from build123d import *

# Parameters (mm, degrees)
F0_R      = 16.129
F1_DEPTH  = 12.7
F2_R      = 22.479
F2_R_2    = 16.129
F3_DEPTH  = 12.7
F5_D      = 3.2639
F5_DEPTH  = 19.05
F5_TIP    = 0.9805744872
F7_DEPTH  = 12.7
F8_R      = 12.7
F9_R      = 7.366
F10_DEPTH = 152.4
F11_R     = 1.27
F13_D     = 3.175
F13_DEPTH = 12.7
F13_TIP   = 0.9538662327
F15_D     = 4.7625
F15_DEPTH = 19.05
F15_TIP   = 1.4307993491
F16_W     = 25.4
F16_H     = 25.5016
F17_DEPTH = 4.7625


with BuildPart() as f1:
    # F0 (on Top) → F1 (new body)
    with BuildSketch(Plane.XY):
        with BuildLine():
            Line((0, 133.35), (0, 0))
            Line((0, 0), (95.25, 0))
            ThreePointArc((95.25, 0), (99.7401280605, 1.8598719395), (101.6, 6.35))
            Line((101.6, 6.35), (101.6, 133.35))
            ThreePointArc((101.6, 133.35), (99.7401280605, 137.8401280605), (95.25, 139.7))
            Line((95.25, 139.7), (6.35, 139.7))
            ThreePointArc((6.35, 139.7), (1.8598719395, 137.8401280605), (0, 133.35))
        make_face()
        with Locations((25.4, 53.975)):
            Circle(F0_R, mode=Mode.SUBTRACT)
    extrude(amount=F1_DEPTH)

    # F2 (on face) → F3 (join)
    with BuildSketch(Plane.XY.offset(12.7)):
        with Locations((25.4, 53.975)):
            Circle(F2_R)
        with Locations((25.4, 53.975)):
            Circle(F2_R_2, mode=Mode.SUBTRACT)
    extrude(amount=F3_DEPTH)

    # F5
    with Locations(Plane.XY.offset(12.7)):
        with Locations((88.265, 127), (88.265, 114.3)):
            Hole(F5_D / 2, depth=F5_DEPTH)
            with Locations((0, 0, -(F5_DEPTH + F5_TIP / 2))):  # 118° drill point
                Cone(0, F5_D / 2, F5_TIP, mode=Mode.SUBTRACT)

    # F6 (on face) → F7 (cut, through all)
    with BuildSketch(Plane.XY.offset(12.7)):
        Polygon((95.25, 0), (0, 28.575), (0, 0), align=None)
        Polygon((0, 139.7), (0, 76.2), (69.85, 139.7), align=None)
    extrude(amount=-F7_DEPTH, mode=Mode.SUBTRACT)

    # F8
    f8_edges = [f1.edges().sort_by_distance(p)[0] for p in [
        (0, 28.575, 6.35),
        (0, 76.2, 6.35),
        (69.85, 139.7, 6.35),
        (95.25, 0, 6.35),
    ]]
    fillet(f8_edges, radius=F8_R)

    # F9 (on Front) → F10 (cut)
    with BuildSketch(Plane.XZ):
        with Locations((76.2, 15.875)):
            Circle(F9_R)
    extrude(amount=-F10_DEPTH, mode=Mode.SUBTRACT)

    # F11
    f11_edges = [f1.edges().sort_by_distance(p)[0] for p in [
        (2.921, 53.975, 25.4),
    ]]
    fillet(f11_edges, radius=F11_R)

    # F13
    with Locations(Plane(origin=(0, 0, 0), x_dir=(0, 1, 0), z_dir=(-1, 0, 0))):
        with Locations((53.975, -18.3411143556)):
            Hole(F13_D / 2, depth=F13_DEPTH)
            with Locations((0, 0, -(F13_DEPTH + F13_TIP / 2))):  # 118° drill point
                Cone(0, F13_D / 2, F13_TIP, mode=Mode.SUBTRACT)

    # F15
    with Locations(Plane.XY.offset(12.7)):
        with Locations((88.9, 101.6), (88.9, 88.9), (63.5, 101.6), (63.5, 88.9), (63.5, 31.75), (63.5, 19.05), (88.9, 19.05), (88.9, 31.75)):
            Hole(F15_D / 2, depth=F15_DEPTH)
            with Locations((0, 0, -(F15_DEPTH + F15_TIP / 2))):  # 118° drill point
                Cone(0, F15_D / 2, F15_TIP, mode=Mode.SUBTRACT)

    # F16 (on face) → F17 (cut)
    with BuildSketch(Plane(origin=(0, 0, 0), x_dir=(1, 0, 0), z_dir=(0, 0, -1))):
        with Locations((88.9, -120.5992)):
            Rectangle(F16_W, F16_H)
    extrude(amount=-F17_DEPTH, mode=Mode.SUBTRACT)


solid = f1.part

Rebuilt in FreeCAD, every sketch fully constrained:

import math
import FreeCAD as App
import Part
import Sketcher
Q = App.Units.Quantity


def edges_at(feature, points):
    """Names of the edges that pass closest to the given points."""
    edges = feature.Shape.Edges
    near = lambda p: min(range(len(edges)), key=lambda i: edges[i].distToShape(Part.Vertex(*p))[0])
    return sorted({f"Edge{near(p) + 1}" for p in points})

doc = App.newDocument("Part")
params = doc.addObject("Spreadsheet::Sheet", "Params")
for row, (alias, value) in enumerate([
    ("sketch1_diameter", "1.27 in"),
    ("sketch1_height", "5 in"),
    ("sketch1_radius", "0.25 in"),
    ("sketch1_width", "3.5 in"),
    ("pad1_length", "0.5 in"),
    ("sketch2_diameter", "1.77 in"),
    ("sketch2_diameter2", "1.27 in"),
    ("pad2_length", "0.5 in"),
    ("hole_diameter", "0.1285 in"),
    ("hole_depth", "0.75 in"),
    ("sketch4_height", "2.5 in"),
    ("sketch4_width", "3.75 in"),
    ("sketch4_height2", "1.125 in"),
    ("fillet_radius", "0.5 in"),
    ("sketch5_diameter", "0.58 in"),
    ("pocket2_length", "6 in"),
    ("fillet2_radius", "0.05 in"),
    ("sketch6_diameter", "0.125 in"),
    ("hole2_diameter", "0.125 in"),
    ("hole2_depth", "0.5 in"),
    ("sketch7_diameter", "0.1875 in"),
    ("hole3_diameter", "0.1875 in"),
    ("hole3_depth", "0.75 in"),
    ("sketch8_width", "1 in"),
    ("sketch8_height", "1.004 in"),
    ("pocket3_length", "0.1875 in"),
], start=1):
    params.set(f"A{row}", alias)
    params.set(f"B{row}", "=" + value)
    params.setAlias(f"B{row}", alias)

body = doc.addObject("PartDesign::Body", "Body")

sketch1 = body.newObject("Sketcher::SketchObject", "Sketch")
sketch1.AttachmentSupport = (doc.getObject("XY_Plane"), [""])
sketch1.MapMode = "FlatFace"
sketch1.addGeometry(Part.LineSegment(App.Vector(0, 133, 0), App.Vector(0, 0, 0)), False)
sketch1.addGeometry(Part.LineSegment(App.Vector(0, 0, 0), App.Vector(95, 0, 0)), False)
sketch1.addGeometry(Part.ArcOfCircle(Part.Circle(App.Vector(95, 6, 0), App.Vector(0, 0, 1), 6), math.radians(-90), math.radians(0)), False)
sketch1.addGeometry(Part.LineSegment(App.Vector(102, 6, 0), App.Vector(102, 133, 0)), False)
sketch1.addGeometry(Part.ArcOfCircle(Part.Circle(App.Vector(95, 133, 0), App.Vector(0, 0, 1), 6), math.radians(0), math.radians(90)), False)
sketch1.addGeometry(Part.LineSegment(App.Vector(95, 140, 0), App.Vector(6, 140, 0)), False)
sketch1.addGeometry(Part.ArcOfCircle(Part.Circle(App.Vector(6, 133, 0), App.Vector(0, 0, 1), 6), math.radians(90), math.radians(180)), False)
sketch1.addGeometry(Part.Circle(App.Vector(25, 54, 0), App.Vector(0, 0, 1), 16), False)
sketch1.addConstraint(Sketcher.Constraint("Coincident", 0, 2, 1, 1))
sketch1.addConstraint(Sketcher.Constraint("Tangent", 1, 2, 2, 1))
sketch1.addConstraint(Sketcher.Constraint("Tangent", 2, 2, 3, 1))
sketch1.addConstraint(Sketcher.Constraint("Tangent", 3, 2, 4, 1))
sketch1.addConstraint(Sketcher.Constraint("Tangent", 4, 2, 5, 1))
sketch1.addConstraint(Sketcher.Constraint("Tangent", 5, 2, 6, 1))
sketch1.addConstraint(Sketcher.Constraint("Tangent", 6, 2, 0, 1))
sketch1.addConstraint(Sketcher.Constraint("Vertical", 0))
sketch1.addConstraint(Sketcher.Constraint("Horizontal", 1))
sketch1.addConstraint(Sketcher.Constraint("Vertical", 3))
sketch1.addConstraint(Sketcher.Constraint("Horizontal", 5))
sketch1.addConstraint(Sketcher.Constraint("Coincident", 0, 2, -1, 1))
sketch1.addConstraint(Sketcher.Constraint("Equal", 2, 4))
sketch1.addConstraint(Sketcher.Constraint("Equal", 4, 6))
sketch1.addConstraint(Sketcher.Constraint("Diameter", 7, Q("1.27 in")))
sketch1.addConstraint(Sketcher.Constraint("DistanceY", 3, 1, 3, 2, Q("5 in")))
sketch1.addConstraint(Sketcher.Constraint("Radius", 2, Q("0.25 in")))
sketch1.addConstraint(Sketcher.Constraint("DistanceX", 5, 2, 5, 1, Q("3.5 in")))
sketch1.addConstraint(Sketcher.Constraint("DistanceX", -1, 1, 7, 3, Q("1 in")))
sketch1.addConstraint(Sketcher.Constraint("DistanceY", -1, 1, 7, 3, Q("2.125 in")))
sketch1.setExpression("Constraints[14]", "Params.sketch1_diameter")
sketch1.setExpression("Constraints[15]", "Params.sketch1_height")
sketch1.setExpression("Constraints[16]", "Params.sketch1_radius")
sketch1.setExpression("Constraints[17]", "Params.sketch1_width")
pad1 = body.newObject("PartDesign::Pad", "Pad")
pad1.Profile = sketch1
pad1.setExpression("Length", "Params.pad1_length")

sketch2 = body.newObject("Sketcher::SketchObject", "Sketch001")
sketch2.AttachmentSupport = (doc.getObject("XY_Plane"), [""])
sketch2.MapMode = "FlatFace"
sketch2.AttachmentOffset = App.Placement(App.Vector(0, 0, 0.5 * 25.4), App.Rotation())
sketch2.addGeometry(Part.Circle(App.Vector(25, 54, 0), App.Vector(0, 0, 1), 22), False)
sketch2.addGeometry(Part.Circle(App.Vector(25, 54, 0), App.Vector(0, 0, 1), 16), False)
sketch2.addConstraint(Sketcher.Constraint("Coincident", 1, 3, 0, 3))
sketch2.addConstraint(Sketcher.Constraint("Diameter", 0, Q("1.77 in")))
sketch2.addConstraint(Sketcher.Constraint("Diameter", 1, Q("1.27 in")))
sketch2.addConstraint(Sketcher.Constraint("DistanceX", -1, 1, 0, 3, Q("1 in")))
sketch2.addConstraint(Sketcher.Constraint("DistanceY", -1, 1, 0, 3, Q("2.125 in")))
sketch2.setExpression("Constraints[1]", "Params.sketch2_diameter")
sketch2.setExpression("Constraints[2]", "Params.sketch2_diameter2")
pad2 = body.newObject("PartDesign::Pad", "Pad001")
pad2.Profile = sketch2
pad2.setExpression("Length", "Params.pad2_length")

sketch3 = body.newObject("Sketcher::SketchObject", "Sketch002")
sketch3.AttachmentSupport = (doc.getObject("XY_Plane"), [""])
sketch3.MapMode = "FlatFace"
sketch3.AttachmentOffset = App.Placement(App.Vector(0, 0, 0.5 * 25.4), App.Rotation())
sketch3.addGeometry(Part.Circle(App.Vector(88.3, 127, 0), App.Vector(0, 0, 1), 1.6), False)
sketch3.addGeometry(Part.Circle(App.Vector(88.3, 114.3, 0), App.Vector(0, 0, 1), 1.6), False)
sketch3.addConstraint(Sketcher.Constraint("Equal", 0, 1))
sketch3.addConstraint(Sketcher.Constraint("Vertical", 0, 3, 1, 3))
sketch3.addConstraint(Sketcher.Constraint("DistanceY", -1, 1, 0, 3, Q("5 in")))
sketch3.addConstraint(Sketcher.Constraint("Diameter", 0, Q("0.1285 in")))
sketch3.addConstraint(Sketcher.Constraint("DistanceY", -1, 1, 1, 3, Q("4.5 in")))
sketch3.addConstraint(Sketcher.Constraint("DistanceX", -1, 1, 0, 3, Q("3.475 in")))
doc.recompute()
hole = body.newObject("PartDesign::Hole", "Hole")
hole.Profile = sketch3
hole.ThreadType = "None"
hole.setExpression("Diameter", "Params.hole_diameter")
hole.DepthType = "Dimension"
hole.setExpression("Depth", "Params.hole_depth")
hole.DrillPoint = "Angled"
hole.DrillPointAngle = 118

sketch4 = body.newObject("Sketcher::SketchObject", "Sketch003")
sketch4.AttachmentSupport = (doc.getObject("XY_Plane"), [""])
sketch4.MapMode = "FlatFace"
sketch4.AttachmentOffset = App.Placement(App.Vector(0, 0, 0.5 * 25.4), App.Rotation())
sketch4.addGeometry(Part.LineSegment(App.Vector(95, 0, 0), App.Vector(0, 29, 0)), False)
sketch4.addGeometry(Part.LineSegment(App.Vector(0, 29, 0), App.Vector(0, 0, 0)), False)
sketch4.addGeometry(Part.LineSegment(App.Vector(0, 0, 0), App.Vector(95, 0, 0)), False)
sketch4.addGeometry(Part.LineSegment(App.Vector(0, 140, 0), App.Vector(0, 76, 0)), False)
sketch4.addGeometry(Part.LineSegment(App.Vector(0, 76, 0), App.Vector(70, 140, 0)), False)
sketch4.addGeometry(Part.LineSegment(App.Vector(70, 140, 0), App.Vector(0, 140, 0)), False)
sketch4.addConstraint(Sketcher.Constraint("Coincident", 0, 2, 1, 1))
sketch4.addConstraint(Sketcher.Constraint("Coincident", 1, 2, 2, 1))
sketch4.addConstraint(Sketcher.Constraint("Coincident", 2, 2, 0, 1))
sketch4.addConstraint(Sketcher.Constraint("Coincident", 3, 2, 4, 1))
sketch4.addConstraint(Sketcher.Constraint("Coincident", 4, 2, 5, 1))
sketch4.addConstraint(Sketcher.Constraint("Coincident", 5, 2, 3, 1))
sketch4.addConstraint(Sketcher.Constraint("Vertical", 1))
sketch4.addConstraint(Sketcher.Constraint("Horizontal", 2))
sketch4.addConstraint(Sketcher.Constraint("Vertical", 3))
sketch4.addConstraint(Sketcher.Constraint("Horizontal", 5))
sketch4.addConstraint(Sketcher.Constraint("Coincident", 1, 2, -1, 1))
sketch4.addConstraint(Sketcher.Constraint("PointOnObject", 3, 2, -2))
sketch4.addConstraint(Sketcher.Constraint("DistanceY", 3, 2, 3, 1, Q("2.5 in")))
sketch4.addConstraint(Sketcher.Constraint("DistanceY", -1, 1, 3, 2, Q("3 in")))
sketch4.addConstraint(Sketcher.Constraint("DistanceX", 4, 2, 2, 2, Q("1 in")))
sketch4.addConstraint(Sketcher.Constraint("DistanceX", 2, 1, 2, 2, Q("3.75 in")))
sketch4.addConstraint(Sketcher.Constraint("DistanceY", 1, 2, 1, 1, Q("1.125 in")))
sketch4.setExpression("Constraints[12]", "Params.sketch4_height")
sketch4.setExpression("Constraints[15]", "Params.sketch4_width")
sketch4.setExpression("Constraints[16]", "Params.sketch4_height2")
pocket1 = body.newObject("PartDesign::Pocket", "Pocket")
pocket1.Profile = sketch4
pocket1.Type = "ThroughAll"
doc.recompute()

fillet = body.newObject("PartDesign::Fillet", "Fillet")
fillet.Base = (pocket1, edges_at(pocket1, [
    (0, 28.575, 6.35),
    (0, 76.2, 6.35),
    (69.85, 139.7, 6.35),
    (95.25, 0, 6.35),
]))
fillet.setExpression("Radius", "Params.fillet_radius")

sketch5 = body.newObject("Sketcher::SketchObject", "Sketch004")
sketch5.AttachmentSupport = (doc.getObject("XZ_Plane"), [""])
sketch5.MapMode = "FlatFace"
sketch5.addGeometry(Part.Circle(App.Vector(76, 16, 0), App.Vector(0, 0, 1), 7), False)
sketch5.addConstraint(Sketcher.Constraint("Diameter", 0, Q("0.58 in")))
sketch5.addConstraint(Sketcher.Constraint("DistanceX", -1, 1, 0, 3, Q("3 in")))
sketch5.addConstraint(Sketcher.Constraint("DistanceY", -1, 1, 0, 3, Q("0.625 in")))
sketch5.setExpression("Constraints[0]", "Params.sketch5_diameter")
pocket2 = body.newObject("PartDesign::Pocket", "Pocket001")
pocket2.Profile = sketch5
pocket2.setExpression("Length", "Params.pocket2_length")
doc.recompute()

fillet2 = body.newObject("PartDesign::Fillet", "Fillet001")
fillet2.Base = (pocket2, edges_at(pocket2, [(2.921, 53.975, 25.4)]))
fillet2.setExpression("Radius", "Params.fillet2_radius")

sketch6 = body.newObject("Sketcher::SketchObject", "Sketch005")
sketch6.AttachmentSupport = (doc.getObject("YZ_Plane"), [""])
sketch6.MapMode = "FlatFace"
sketch6.addGeometry(Part.Circle(App.Vector(54, 18.3, 0), App.Vector(0, 0, 1), 1.6), False)
sketch6.addConstraint(Sketcher.Constraint("Diameter", 0, Q("0.125 in")))
sketch6.addConstraint(Sketcher.Constraint("DistanceX", -1, 1, 0, 3, Q("2.125 in")))
sketch6.addConstraint(Sketcher.Constraint("DistanceY", -1, 1, 0, 3, Q("18.341114 mm")))
sketch6.setExpression("Constraints[0]", "Params.sketch6_diameter")
doc.recompute()
hole2 = body.newObject("PartDesign::Hole", "Hole001")
hole2.Profile = sketch6
hole2.ThreadType = "None"
hole2.setExpression("Diameter", "Params.hole2_diameter")
hole2.DepthType = "Dimension"
hole2.setExpression("Depth", "Params.hole2_depth")
hole2.DrillPoint = "Angled"
hole2.DrillPointAngle = 118
hole2.Reversed = True

sketch7 = body.newObject("Sketcher::SketchObject", "Sketch006")
sketch7.AttachmentSupport = (doc.getObject("XY_Plane"), [""])
sketch7.MapMode = "FlatFace"
sketch7.AttachmentOffset = App.Placement(App.Vector(0, 0, 0.5 * 25.4), App.Rotation())
sketch7.addGeometry(Part.Circle(App.Vector(88.9, 101.6, 0), App.Vector(0, 0, 1), 2.4), False)
sketch7.addGeometry(Part.Circle(App.Vector(88.9, 88.9, 0), App.Vector(0, 0, 1), 2.4), False)
sketch7.addGeometry(Part.Circle(App.Vector(63.5, 101.6, 0), App.Vector(0, 0, 1), 2.4), False)
sketch7.addGeometry(Part.Circle(App.Vector(63.5, 88.9, 0), App.Vector(0, 0, 1), 2.4), False)
sketch7.addGeometry(Part.Circle(App.Vector(63.5, 31.8, 0), App.Vector(0, 0, 1), 2.4), False)
sketch7.addGeometry(Part.Circle(App.Vector(63.5, 19.1, 0), App.Vector(0, 0, 1), 2.4), False)
sketch7.addGeometry(Part.Circle(App.Vector(88.9, 19.1, 0), App.Vector(0, 0, 1), 2.4), False)
sketch7.addGeometry(Part.Circle(App.Vector(88.9, 31.8, 0), App.Vector(0, 0, 1), 2.4), False)
sketch7.addConstraint(Sketcher.Constraint("Equal", 0, 1))
sketch7.addConstraint(Sketcher.Constraint("Equal", 1, 2))
sketch7.addConstraint(Sketcher.Constraint("Equal", 2, 3))
sketch7.addConstraint(Sketcher.Constraint("Equal", 3, 4))
sketch7.addConstraint(Sketcher.Constraint("Equal", 4, 5))
sketch7.addConstraint(Sketcher.Constraint("Equal", 5, 6))
sketch7.addConstraint(Sketcher.Constraint("Equal", 6, 7))
sketch7.addConstraint(Sketcher.Constraint("Horizontal", 0, 3, 2, 3))
sketch7.addConstraint(Sketcher.Constraint("Horizontal", 1, 3, 3, 3))
sketch7.addConstraint(Sketcher.Constraint("Horizontal", 5, 3, 6, 3))
sketch7.addConstraint(Sketcher.Constraint("Horizontal", 4, 3, 7, 3))
sketch7.addConstraint(Sketcher.Constraint("Vertical", 0, 3, 1, 3))
sketch7.addConstraint(Sketcher.Constraint("Vertical", 2, 3, 3, 3))
sketch7.addConstraint(Sketcher.Constraint("Vertical", 3, 3, 4, 3))
sketch7.addConstraint(Sketcher.Constraint("Vertical", 4, 3, 5, 3))
sketch7.addConstraint(Sketcher.Constraint("Vertical", 1, 3, 6, 3))
sketch7.addConstraint(Sketcher.Constraint("Vertical", 6, 3, 7, 3))
sketch7.addConstraint(Sketcher.Constraint("Diameter", 0, Q("0.1875 in")))
sketch7.addConstraint(Sketcher.Constraint("DistanceY", -1, 1, 0, 3, Q("4 in")))
sketch7.addConstraint(Sketcher.Constraint("DistanceX", 2, 3, 0, 3, Q("1 in")))
sketch7.addConstraint(Sketcher.Constraint("DistanceX", -1, 1, 0, 3, Q("3.5 in")))
sketch7.addConstraint(Sketcher.Constraint("DistanceY", -1, 1, 1, 3, Q("3.5 in")))
sketch7.addConstraint(Sketcher.Constraint("DistanceY", 5, 3, 4, 3, Q("0.5 in")))
sketch7.addConstraint(Sketcher.Constraint("DistanceY", -1, 1, 4, 3, Q("1.25 in")))
sketch7.setExpression("Constraints[17]", "Params.sketch7_diameter")
doc.recompute()
hole3 = body.newObject("PartDesign::Hole", "Hole002")
hole3.Profile = sketch7
hole3.ThreadType = "None"
hole3.setExpression("Diameter", "Params.hole3_diameter")
hole3.DepthType = "Dimension"
hole3.setExpression("Depth", "Params.hole3_depth")
hole3.DrillPoint = "Angled"
hole3.DrillPointAngle = 118

sketch8 = body.newObject("Sketcher::SketchObject", "Sketch007")
sketch8.AttachmentSupport = (doc.getObject("XY_Plane"), [""])
sketch8.MapMode = "FlatFace"
sketch8.addGeometry(Part.LineSegment(App.Vector(76, 108, 0), App.Vector(76, 133, 0)), False)
sketch8.addGeometry(Part.LineSegment(App.Vector(76, 133, 0), App.Vector(102, 133, 0)), False)
sketch8.addGeometry(Part.LineSegment(App.Vector(102, 133, 0), App.Vector(102, 108, 0)), False)
sketch8.addGeometry(Part.LineSegment(App.Vector(102, 108, 0), App.Vector(76, 108, 0)), False)
sketch8.addConstraint(Sketcher.Constraint("Coincident", 0, 2, 1, 1))
sketch8.addConstraint(Sketcher.Constraint("Coincident", 1, 2, 2, 1))
sketch8.addConstraint(Sketcher.Constraint("Coincident", 2, 2, 3, 1))
sketch8.addConstraint(Sketcher.Constraint("Coincident", 3, 2, 0, 1))
sketch8.addConstraint(Sketcher.Constraint("Vertical", 0))
sketch8.addConstraint(Sketcher.Constraint("Horizontal", 1))
sketch8.addConstraint(Sketcher.Constraint("Vertical", 2))
sketch8.addConstraint(Sketcher.Constraint("Horizontal", 3))
sketch8.addConstraint(Sketcher.Constraint("DistanceX", 1, 1, 1, 2, Q("1 in")))
sketch8.addConstraint(Sketcher.Constraint("DistanceX", -1, 1, 0, 2, Q("3 in")))
sketch8.addConstraint(Sketcher.Constraint("DistanceY", 0, 1, 0, 2, Q("1.004 in")))
sketch8.addConstraint(Sketcher.Constraint("DistanceY", -1, 1, 0, 2, Q("5.25 in")))
sketch8.setExpression("Constraints[8]", "Params.sketch8_width")
sketch8.setExpression("Constraints[10]", "Params.sketch8_height")
pocket3 = body.newObject("PartDesign::Pocket", "Pocket002")
pocket3.Profile = sketch8
pocket3.setExpression("Length", "Params.pocket3_length")
pocket3.Reversed = True

doc.recompute()
